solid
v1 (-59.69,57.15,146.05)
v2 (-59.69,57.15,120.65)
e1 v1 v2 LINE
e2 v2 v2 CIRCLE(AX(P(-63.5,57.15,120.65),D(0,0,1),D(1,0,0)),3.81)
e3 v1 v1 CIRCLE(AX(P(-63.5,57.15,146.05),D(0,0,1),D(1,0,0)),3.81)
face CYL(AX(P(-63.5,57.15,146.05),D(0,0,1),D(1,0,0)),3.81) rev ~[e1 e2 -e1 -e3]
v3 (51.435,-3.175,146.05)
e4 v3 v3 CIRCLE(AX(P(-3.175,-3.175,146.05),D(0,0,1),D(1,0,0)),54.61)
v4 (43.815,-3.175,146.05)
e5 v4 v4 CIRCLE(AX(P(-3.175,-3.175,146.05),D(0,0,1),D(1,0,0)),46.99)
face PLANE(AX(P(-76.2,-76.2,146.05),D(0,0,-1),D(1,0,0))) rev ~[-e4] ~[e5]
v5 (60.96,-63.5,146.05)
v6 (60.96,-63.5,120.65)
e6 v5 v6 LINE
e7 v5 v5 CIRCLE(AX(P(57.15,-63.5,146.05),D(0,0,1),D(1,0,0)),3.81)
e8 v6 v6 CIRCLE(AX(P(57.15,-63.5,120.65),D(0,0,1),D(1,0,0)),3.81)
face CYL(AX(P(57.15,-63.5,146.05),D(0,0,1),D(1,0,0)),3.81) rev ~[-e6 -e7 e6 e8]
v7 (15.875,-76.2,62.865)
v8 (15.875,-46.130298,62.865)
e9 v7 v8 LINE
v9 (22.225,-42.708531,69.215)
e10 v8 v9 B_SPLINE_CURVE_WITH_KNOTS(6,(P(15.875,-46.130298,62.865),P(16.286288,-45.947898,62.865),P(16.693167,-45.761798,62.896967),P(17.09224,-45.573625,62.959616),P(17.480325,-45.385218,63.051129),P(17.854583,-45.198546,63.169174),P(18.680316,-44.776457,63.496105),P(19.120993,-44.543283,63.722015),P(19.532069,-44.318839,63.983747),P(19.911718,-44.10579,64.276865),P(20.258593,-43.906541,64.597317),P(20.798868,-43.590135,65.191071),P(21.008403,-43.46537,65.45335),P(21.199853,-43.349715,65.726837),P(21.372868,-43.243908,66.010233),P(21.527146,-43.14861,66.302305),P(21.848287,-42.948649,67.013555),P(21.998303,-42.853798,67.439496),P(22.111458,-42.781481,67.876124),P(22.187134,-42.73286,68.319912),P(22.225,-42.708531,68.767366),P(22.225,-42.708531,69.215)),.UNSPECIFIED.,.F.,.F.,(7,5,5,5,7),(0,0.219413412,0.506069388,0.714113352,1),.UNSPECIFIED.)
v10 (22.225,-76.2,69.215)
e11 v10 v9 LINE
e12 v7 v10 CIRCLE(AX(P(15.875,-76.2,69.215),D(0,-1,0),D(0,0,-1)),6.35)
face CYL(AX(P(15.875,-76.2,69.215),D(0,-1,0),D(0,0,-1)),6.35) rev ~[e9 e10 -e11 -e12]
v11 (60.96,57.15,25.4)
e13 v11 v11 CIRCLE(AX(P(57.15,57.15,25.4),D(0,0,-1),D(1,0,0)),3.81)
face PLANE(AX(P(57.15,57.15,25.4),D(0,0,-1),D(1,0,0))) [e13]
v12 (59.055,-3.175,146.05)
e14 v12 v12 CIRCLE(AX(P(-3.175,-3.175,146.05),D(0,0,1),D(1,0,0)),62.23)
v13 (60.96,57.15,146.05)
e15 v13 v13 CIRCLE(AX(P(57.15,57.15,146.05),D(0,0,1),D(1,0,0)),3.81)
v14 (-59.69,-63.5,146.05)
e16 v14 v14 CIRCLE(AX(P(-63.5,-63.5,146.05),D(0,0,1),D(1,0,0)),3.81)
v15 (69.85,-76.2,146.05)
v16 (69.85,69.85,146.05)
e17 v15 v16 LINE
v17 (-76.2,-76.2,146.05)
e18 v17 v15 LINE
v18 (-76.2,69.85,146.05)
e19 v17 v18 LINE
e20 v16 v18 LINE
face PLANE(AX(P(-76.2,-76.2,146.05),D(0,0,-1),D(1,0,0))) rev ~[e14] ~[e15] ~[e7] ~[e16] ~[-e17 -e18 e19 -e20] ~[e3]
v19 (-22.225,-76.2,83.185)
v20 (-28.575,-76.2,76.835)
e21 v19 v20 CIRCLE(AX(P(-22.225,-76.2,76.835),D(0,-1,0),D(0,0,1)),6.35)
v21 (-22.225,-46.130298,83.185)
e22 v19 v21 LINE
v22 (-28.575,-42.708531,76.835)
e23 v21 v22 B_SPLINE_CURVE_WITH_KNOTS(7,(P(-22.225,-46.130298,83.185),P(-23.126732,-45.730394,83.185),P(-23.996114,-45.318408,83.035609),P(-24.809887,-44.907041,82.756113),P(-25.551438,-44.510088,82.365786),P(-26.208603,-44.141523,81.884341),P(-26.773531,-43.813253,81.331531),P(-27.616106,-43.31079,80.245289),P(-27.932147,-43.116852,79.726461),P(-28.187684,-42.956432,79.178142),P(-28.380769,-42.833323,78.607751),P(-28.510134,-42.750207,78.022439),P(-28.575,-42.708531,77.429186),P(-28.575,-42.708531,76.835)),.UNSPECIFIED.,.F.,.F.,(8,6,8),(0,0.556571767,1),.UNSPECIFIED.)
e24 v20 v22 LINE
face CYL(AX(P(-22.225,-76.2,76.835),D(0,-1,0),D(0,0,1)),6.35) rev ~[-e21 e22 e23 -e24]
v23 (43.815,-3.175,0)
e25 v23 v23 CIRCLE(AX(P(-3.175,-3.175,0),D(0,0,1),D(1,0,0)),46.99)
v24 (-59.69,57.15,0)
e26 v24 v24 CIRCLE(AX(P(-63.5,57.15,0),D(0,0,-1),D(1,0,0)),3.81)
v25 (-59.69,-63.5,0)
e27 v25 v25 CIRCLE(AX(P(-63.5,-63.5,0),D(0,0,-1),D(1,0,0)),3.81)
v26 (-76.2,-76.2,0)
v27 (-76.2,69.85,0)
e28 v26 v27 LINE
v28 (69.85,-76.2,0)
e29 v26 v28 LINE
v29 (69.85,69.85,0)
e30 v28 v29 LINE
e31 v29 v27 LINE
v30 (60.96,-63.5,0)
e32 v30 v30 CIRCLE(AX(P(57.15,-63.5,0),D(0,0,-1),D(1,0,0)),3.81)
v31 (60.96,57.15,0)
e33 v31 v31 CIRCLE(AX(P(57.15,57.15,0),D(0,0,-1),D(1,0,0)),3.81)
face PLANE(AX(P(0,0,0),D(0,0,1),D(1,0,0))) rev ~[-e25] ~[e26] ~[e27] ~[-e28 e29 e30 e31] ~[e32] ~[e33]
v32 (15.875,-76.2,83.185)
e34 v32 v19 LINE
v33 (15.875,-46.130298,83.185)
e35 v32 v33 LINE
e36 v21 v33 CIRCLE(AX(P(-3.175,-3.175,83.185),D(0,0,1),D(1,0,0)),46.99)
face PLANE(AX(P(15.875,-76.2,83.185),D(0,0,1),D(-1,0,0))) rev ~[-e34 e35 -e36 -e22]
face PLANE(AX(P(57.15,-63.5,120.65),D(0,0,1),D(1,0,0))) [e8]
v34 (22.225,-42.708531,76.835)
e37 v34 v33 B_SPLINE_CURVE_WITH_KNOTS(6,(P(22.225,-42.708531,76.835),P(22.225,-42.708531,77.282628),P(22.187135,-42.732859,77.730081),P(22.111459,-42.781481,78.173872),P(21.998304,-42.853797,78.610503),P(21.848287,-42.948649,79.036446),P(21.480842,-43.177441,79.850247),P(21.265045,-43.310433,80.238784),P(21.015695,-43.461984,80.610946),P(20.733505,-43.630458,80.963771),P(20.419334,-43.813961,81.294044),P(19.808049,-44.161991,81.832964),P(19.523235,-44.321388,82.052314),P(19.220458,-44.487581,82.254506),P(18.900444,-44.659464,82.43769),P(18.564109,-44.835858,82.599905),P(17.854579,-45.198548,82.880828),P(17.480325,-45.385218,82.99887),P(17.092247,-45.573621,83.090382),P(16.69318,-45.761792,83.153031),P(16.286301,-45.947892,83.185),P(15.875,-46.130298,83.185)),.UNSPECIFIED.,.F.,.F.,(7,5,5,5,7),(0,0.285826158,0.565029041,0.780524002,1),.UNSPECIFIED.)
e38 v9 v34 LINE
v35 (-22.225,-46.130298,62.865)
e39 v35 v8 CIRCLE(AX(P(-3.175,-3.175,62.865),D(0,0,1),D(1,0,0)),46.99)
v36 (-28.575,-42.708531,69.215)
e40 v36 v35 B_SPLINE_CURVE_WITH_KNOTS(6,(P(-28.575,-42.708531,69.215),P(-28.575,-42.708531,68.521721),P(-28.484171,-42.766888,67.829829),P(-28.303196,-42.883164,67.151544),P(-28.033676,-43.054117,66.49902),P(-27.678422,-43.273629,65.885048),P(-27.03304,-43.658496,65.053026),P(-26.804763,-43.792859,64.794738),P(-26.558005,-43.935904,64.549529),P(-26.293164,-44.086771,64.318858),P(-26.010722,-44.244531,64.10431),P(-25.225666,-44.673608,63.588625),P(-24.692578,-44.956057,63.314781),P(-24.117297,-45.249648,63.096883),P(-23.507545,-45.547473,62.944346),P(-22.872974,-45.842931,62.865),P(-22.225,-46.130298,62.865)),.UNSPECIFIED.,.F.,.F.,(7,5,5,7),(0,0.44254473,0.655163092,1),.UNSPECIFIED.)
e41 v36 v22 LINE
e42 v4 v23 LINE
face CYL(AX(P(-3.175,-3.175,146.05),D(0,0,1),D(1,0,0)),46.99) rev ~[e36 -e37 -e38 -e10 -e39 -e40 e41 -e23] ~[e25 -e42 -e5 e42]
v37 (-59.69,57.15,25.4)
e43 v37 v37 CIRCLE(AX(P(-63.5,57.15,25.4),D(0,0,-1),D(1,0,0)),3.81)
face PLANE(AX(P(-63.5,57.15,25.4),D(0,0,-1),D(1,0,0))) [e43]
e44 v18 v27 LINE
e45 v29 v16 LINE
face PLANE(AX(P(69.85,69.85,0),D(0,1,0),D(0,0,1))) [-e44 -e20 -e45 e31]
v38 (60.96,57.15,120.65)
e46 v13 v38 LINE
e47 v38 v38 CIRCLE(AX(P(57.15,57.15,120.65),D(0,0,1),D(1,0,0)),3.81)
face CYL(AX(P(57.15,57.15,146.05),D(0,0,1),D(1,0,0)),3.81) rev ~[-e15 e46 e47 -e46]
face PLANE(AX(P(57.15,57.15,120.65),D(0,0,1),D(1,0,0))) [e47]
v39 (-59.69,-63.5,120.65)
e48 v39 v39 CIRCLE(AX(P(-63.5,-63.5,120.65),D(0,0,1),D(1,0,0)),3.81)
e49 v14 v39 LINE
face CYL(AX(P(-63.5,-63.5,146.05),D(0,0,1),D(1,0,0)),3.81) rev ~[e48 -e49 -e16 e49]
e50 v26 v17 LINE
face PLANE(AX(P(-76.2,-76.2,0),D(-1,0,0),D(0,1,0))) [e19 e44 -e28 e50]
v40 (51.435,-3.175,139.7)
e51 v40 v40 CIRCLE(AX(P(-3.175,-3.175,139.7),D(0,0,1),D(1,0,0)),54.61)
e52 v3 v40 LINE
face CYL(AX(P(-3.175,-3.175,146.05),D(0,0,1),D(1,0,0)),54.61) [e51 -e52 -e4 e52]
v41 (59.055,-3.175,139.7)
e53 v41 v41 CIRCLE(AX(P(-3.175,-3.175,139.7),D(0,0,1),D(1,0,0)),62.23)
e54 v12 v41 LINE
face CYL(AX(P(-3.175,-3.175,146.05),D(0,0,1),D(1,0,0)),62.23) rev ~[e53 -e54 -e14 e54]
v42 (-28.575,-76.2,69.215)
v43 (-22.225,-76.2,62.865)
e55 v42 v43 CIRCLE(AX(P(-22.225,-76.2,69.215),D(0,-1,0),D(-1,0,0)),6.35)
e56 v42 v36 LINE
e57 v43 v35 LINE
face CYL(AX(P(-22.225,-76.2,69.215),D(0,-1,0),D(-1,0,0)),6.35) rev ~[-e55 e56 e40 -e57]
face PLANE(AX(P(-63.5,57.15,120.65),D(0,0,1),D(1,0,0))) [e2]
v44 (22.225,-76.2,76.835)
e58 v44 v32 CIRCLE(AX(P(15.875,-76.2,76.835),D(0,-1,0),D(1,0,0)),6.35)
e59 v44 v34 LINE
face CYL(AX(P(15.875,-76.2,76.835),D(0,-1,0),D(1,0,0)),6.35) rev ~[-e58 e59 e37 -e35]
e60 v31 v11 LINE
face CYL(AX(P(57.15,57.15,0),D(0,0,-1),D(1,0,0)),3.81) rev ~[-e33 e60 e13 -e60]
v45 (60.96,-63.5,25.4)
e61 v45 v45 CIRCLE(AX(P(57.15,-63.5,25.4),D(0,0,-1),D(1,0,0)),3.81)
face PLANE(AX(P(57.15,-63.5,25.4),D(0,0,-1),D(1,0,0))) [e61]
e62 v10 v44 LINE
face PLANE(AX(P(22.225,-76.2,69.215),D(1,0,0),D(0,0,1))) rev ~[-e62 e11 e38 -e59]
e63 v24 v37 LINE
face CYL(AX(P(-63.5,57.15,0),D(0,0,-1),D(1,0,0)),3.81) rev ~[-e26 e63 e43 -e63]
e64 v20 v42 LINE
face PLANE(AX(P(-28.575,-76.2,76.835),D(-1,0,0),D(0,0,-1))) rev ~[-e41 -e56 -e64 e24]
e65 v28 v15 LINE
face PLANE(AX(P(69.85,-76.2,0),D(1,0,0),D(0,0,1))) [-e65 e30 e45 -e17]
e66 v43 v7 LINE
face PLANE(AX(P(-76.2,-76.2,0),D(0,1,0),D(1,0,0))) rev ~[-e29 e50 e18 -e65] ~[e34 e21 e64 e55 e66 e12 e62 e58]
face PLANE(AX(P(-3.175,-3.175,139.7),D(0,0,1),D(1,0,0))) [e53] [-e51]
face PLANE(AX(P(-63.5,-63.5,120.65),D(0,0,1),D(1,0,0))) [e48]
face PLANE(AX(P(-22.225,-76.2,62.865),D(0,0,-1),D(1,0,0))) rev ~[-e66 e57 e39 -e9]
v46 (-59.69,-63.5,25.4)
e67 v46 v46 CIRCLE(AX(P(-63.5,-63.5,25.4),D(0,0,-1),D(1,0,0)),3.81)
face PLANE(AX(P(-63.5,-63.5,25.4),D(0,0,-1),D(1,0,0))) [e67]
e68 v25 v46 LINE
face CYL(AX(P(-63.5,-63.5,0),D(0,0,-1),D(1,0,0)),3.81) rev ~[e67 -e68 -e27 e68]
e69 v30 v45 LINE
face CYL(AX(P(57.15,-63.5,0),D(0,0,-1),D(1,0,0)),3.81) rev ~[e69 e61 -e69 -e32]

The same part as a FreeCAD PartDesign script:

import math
import FreeCAD as App
import Part
import Sketcher

V = App.Vector
Q = App.Units.Quantity

doc = App.newDocument("Part")
body = doc.addObject("PartDesign::Body", "Body")

sketch1 = body.newObject("Sketcher::SketchObject", "Sketch")
sketch1.AttachmentSupport = (doc.getObject("XY_Plane"), [""])
sketch1.MapMode = "FlatFace"
sketch1.addGeometry([
    Part.LineSegment(V(-76, 76, 0), V(-76, -76, 0)),
    Part.LineSegment(V(-76, -76, 0), V(76, -76, 0)),
    Part.LineSegment(V(76, -76, 0), V(76, 76, 0)),
    Part.LineSegment(V(76, 76, 0), V(-76, 76, 0)),
], False)
sketch1.addConstraint([
    Sketcher.Constraint("Coincident", 0, 2, 1, 1),
    Sketcher.Constraint("Coincident", 1, 2, 2, 1),
    Sketcher.Constraint("Coincident", 2, 2, 3, 1),
    Sketcher.Constraint("Coincident", 3, 2, 0, 1),
    Sketcher.Constraint("Vertical", 0),
    Sketcher.Constraint("Horizontal", 1),
    Sketcher.Constraint("Vertical", 2),
    Sketcher.Constraint("Horizontal", 3),
    Sketcher.Constraint("Symmetric", 0, 2, 2, 2, -1, 1),
    Sketcher.Constraint("Equal", 3, 0),
    Sketcher.Constraint("DistanceX", 1, 1, 1, 2, Q("6 in")),
])
pad1 = body.newObject("PartDesign::Pad", "Pad")
pad1.Profile = sketch1
pad1.Length = Q("6 in")

sketch2 = body.newObject("Sketcher::SketchObject", "Sketch001")
sketch2.AttachmentSupport = (doc.getObject("XZ_Plane"), [""])
sketch2.MapMode = "FlatFace"
sketch2.AttachmentOffset = App.Placement(V(0, 0, 3 * 25.4), App.Rotation())
sketch2.addGeometry([
    Part.LineSegment(V(70, 152, 0), V(70, 0, 0)),
    Part.LineSegment(V(70, 0, 0), V(76, 0, 0)),
    Part.LineSegment(V(76, 0, 0), V(76, 152, 0)),
    Part.LineSegment(V(76, 152, 0), V(70, 152, 0)),
], False)
sketch2.addConstraint([
    Sketcher.Constraint("Coincident", 0, 2, 1, 1),
    Sketcher.Constraint("Coincident", 1, 2, 2, 1),
    Sketcher.Constraint("Coincident", 2, 2, 3, 1),
    Sketcher.Constraint("Coincident", 3, 2, 0, 1),
    Sketcher.Constraint("Vertical", 0),
    Sketcher.Constraint("Horizontal", 1),
    Sketcher.Constraint("Vertical", 2),
    Sketcher.Constraint("Horizontal", 3),
    Sketcher.Constraint("PointOnObject", 0, 2, -1),
    Sketcher.Constraint("DistanceY", 0, 2, 0, 1, Q("6 in")),
    Sketcher.Constraint("DistanceX", -1, 1, 1, 2, Q("3 in")),
    Sketcher.Constraint("DistanceX", 1, 1, 1, 2, Q("0.25 in")),
])
pocket1 = body.newObject("PartDesign::Pocket", "Pocket")
pocket1.Profile = sketch2
pocket1.Type = "ThroughAll"

sketch3 = body.newObject("Sketcher::SketchObject", "Sketch002")
sketch3.AttachmentSupport = (doc.getObject("YZ_Plane"), [""])
sketch3.MapMode = "FlatFace"
sketch3.AttachmentOffset = App.Placement(V(0, 0, 2.75 * 25.4), App.Rotation())
sketch3.addGeometry([
    Part.LineSegment(V(70, 152, 0), V(70, 0, 0)),
    Part.LineSegment(V(70, 0, 0), V(76, 0, 0)),
    Part.LineSegment(V(76, 0, 0), V(76, 152, 0)),
    Part.LineSegment(V(76, 152, 0), V(70, 152, 0)),
], False)
sketch3.addConstraint([
    Sketcher.Constraint("Coincident", 0, 2, 1, 1),
    Sketcher.Constraint("Coincident", 1, 2, 2, 1),
    Sketcher.Constraint("Coincident", 2, 2, 3, 1),
    Sketcher.Constraint("Coincident", 3, 2, 0, 1),
    Sketcher.Constraint("Vertical", 0),
    Sketcher.Constraint("Horizontal", 1),
    Sketcher.Constraint("Vertical", 2),
    Sketcher.Constraint("Horizontal", 3),
    Sketcher.Constraint("PointOnObject", 0, 2, -1),
    Sketcher.Constraint("DistanceY", 0, 2, 0, 1, Q("6 in")),
    Sketcher.Constraint("DistanceX", -1, 1, 1, 2, Q("3 in")),
    Sketcher.Constraint("DistanceX", 1, 1, 1, 2, Q("0.25 in")),
])
pocket2 = body.newObject("PartDesign::Pocket", "Pocket001")
pocket2.Profile = sketch3
pocket2.Type = "ThroughAll"

sketch4 = body.newObject("Sketcher::SketchObject", "Sketch003")
sketch4.AttachmentSupport = (doc.getObject("XZ_Plane"), [""])
sketch4.MapMode = "FlatFace"
sketch4.AttachmentOffset = App.Placement(V(0, 0, 3 * 25.4), App.Rotation())
sketch4.addGeometry([
    Part.LineSegment(V(-76, 152, 0), V(-76, 146, 0)),
    Part.LineSegment(V(-76, 146, 0), V(70, 146, 0)),
    Part.LineSegment(V(70, 146, 0), V(70, 152, 0)),
    Part.LineSegment(V(70, 152, 0), V(-76, 152, 0)),
], False)
sketch4.addConstraint([
    Sketcher.Constraint("Coincident", 0, 2, 1, 1),
    Sketcher.Constraint("Coincident", 1, 2, 2, 1),
    Sketcher.Constraint("Coincident", 2, 2, 3, 1),
    Sketcher.Constraint("Coincident", 3, 2, 0, 1),
    Sketcher.Constraint("Vertical", 0),
    Sketcher.Constraint("Horizontal", 1),
    Sketcher.Constraint("Vertical", 2),
    Sketcher.Constraint("Horizontal", 3),
    Sketcher.Constraint("DistanceX", 0, 2, -1, 1, Q("3 in")),
    Sketcher.Constraint("DistanceY", -1, 1, 2, 2, Q("6 in")),
    Sketcher.Constraint("DistanceX", 1, 1, 1, 2, Q("5.75 in")),
    Sketcher.Constraint("DistanceY", 0, 2, 0, 1, Q("0.25 in")),
])
pocket3 = body.newObject("PartDesign::Pocket", "Pocket002")
pocket3.Profile = sketch4
pocket3.Type = "ThroughAll"

sketch5 = body.newObject("Sketcher::SketchObject", "Sketch004")
sketch5.AttachmentSupport = (doc.getObject("XY_Plane"), [""])
sketch5.MapMode = "FlatFace"
sketch5.AttachmentOffset = App.Placement(V(0, 0, 5.75 * 25.4), App.Rotation())
sketch5.addGeometry([
    Part.Circle(V(-63.5, 57.1, 0), V(0, 0, 1), 3.8),
    Part.Circle(V(57.1, 57.1, 0), V(0, 0, 1), 3.8),
    Part.Circle(V(57.1, -63.5, 0), V(0, 0, 1), 3.8),
    Part.Circle(V(-63.5, -63.5, 0), V(0, 0, 1), 3.8),
], False)
sketch5.addConstraint([
    Sketcher.Constraint("Equal", 0, 1),
    Sketcher.Constraint("Equal", 1, 2),
    Sketcher.Constraint("Equal", 2, 3),
    Sketcher.Constraint("Horizontal", 0, 3, 1, 3),
    Sketcher.Constraint("Horizontal", 2, 3, 3, 3),
    Sketcher.Constraint("Vertical", 1, 3, 2, 3),
    Sketcher.Constraint("Vertical", 0, 3, 3, 3),
    Sketcher.Constraint("Diameter", 0, Q("0.3 in")),
    Sketcher.Constraint("DistanceX", 0, 3, -1, 1, Q("2.5 in")),
    Sketcher.Constraint("DistanceY", 2, 3, -1, 1, Q("2.5 in")),
    Sketcher.Constraint("DistanceY", -1, 1, 0, 3, Q("2.25 in")),
    Sketcher.Constraint("DistanceX", -1, 1, 1, 3, Q("2.25 in")),
])
pocket4 = body.newObject("PartDesign::Pocket", "Pocket003")
pocket4.Profile = sketch5
pocket4.Length = Q("1 in")

sketch6 = body.newObject("Sketcher::SketchObject", "Sketch005")
sketch6.AttachmentSupport = (doc.getObject("XY_Plane"), [""])
sketch6.MapMode = "FlatFace"
sketch6.AttachmentOffset = App.Placement(V(0, 0, 5.75 * 25.4), App.Rotation())
sketch6.addGeometry([
    Part.Circle(V(-3, -3, 0), V(0, 0, 1), 62),
    Part.Circle(V(-3, -3, 0), V(0, 0, 1), 55),
], False)
sketch6.addConstraint([
    Sketcher.Constraint("Coincident", 1, 3, 0, 3),
    Sketcher.Constraint("Diameter", 0, Q("4.9 in")),
    Sketcher.Constraint("Diameter", 1, Q("4.3 in")),
    Sketcher.Constraint("DistanceX", 0, 3, -1, 1, Q("0.125 in")),
    Sketcher.Constraint("DistanceY", 0, 3, -1, 1, Q("0.125 in")),
])
pocket5 = body.newObject("PartDesign::Pocket", "Pocket004")
pocket5.Profile = sketch6
pocket5.Length = Q("0.25 in")

sketch7 = body.newObject("Sketcher::SketchObject", "Sketch006")
sketch7.AttachmentSupport = (doc.getObject("XY_Plane"), [""])
sketch7.MapMode = "FlatFace"
sketch7.AttachmentOffset = App.Placement(V(0, 0, 5.75 * 25.4), App.Rotation())
sketch7.addGeometry(Part.Circle(V(-3, -3, 0), V(0, 0, 1), 47), False)
sketch7.addConstraint([
    Sketcher.Constraint("Diameter", 0, Q("3.7 in")),
    Sketcher.Constraint("DistanceX", 0, 3, -1, 1, Q("0.125 in")),
    Sketcher.Constraint("DistanceY", 0, 3, -1, 1, Q("0.125 in")),
])
pocket6 = body.newObject("PartDesign::Pocket", "Pocket005")
pocket6.Profile = sketch7
pocket6.Type = "ThroughAll"

sketch8 = body.newObject("Sketcher::SketchObject", "Sketch007")
sketch8.AttachmentSupport = (doc.getObject("XZ_Plane"), [""])
sketch8.MapMode = "FlatFace"
sketch8.AttachmentOffset = App.Placement(V(0, 0, 3 * 25.4), App.Rotation())
sketch8.addGeometry([
    Part.ArcOfCircle(Part.Circle(V(16, 77, 0), V(0, 0, 1), 6), math.radians(0), math.radians(90)),
    Part.LineSegment(V(16, 83, 0), V(-22, 83, 0)),
    Part.ArcOfCircle(Part.Circle(V(-22, 77, 0), V(0, 0, 1), 6), math.radians(90), math.radians(180)),
    Part.LineSegment(V(-29, 77, 0), V(-29, 69, 0)),
    Part.ArcOfCircle(Part.Circle(V(-22, 69, 0), V(0, 0, 1), 6), math.radians(180), math.radians(270)),
    Part.LineSegment(V(-22, 63, 0), V(16, 63, 0)),
    Part.ArcOfCircle(Part.Circle(V(16, 69, 0), V(0, 0, 1), 6), math.radians(-90), math.radians(0)),
    Part.LineSegment(V(22, 69, 0), V(22, 77, 0)),
], False)
sketch8.addConstraint([
    Sketcher.Constraint("Tangent", 0, 2, 1, 1),
    Sketcher.Constraint("Tangent", 1, 2, 2, 1),
    Sketcher.Constraint("Tangent", 2, 2, 3, 1),
    Sketcher.Constraint("Tangent", 3, 2, 4, 1),
    Sketcher.Constraint("Tangent", 4, 2, 5, 1),
    Sketcher.Constraint("Tangent", 5, 2, 6, 1),
    Sketcher.Constraint("Tangent", 6, 2, 7, 1),
    Sketcher.Constraint("Tangent", 7, 2, 0, 1),
    Sketcher.Constraint("Horizontal", 1),
    Sketcher.Constraint("Vertical", 3),
    Sketcher.Constraint("Horizontal", 5),
    Sketcher.Constraint("Vertical", 7),
    Sketcher.Constraint("Equal", 0, 2),
    Sketcher.Constraint("Equal", 2, 4),
    Sketcher.Constraint("Equal", 4, 6),
    Sketcher.Constraint("Radius", 0, Q("0.25 in")),
    Sketcher.Constraint("DistanceX", 1, 2, 1, 1, Q("1.5 in")),
    Sketcher.Constraint("DistanceY", 3, 2, 3, 1, Q("0.3 in")),
    Sketcher.Constraint("DistanceX", -1, 1, 0, 3, Q("0.625 in")),
    Sketcher.Constraint("DistanceY", -1, 1, 0, 3, Q("3.025 in")),
])
pocket7 = body.newObject("PartDesign::Pocket", "Pocket006")
pocket7.Profile = sketch8
pocket7.Length = Q("2 in")

sketch9 = body.newObject("Sketcher::SketchObject", "Sketch008")
sketch9.AttachmentSupport = (doc.getObject("XY_Plane"), [""])
sketch9.MapMode = "FlatFace"
sketch9.addGeometry([
    Part.Circle(V(-63.5, -63.5, 0), V(0, 0, 1), 3.8),
    Part.Circle(V(57.1, -63.5, 0), V(0, 0, 1), 3.8),
    Part.Circle(V(57.1, 57.1, 0), V(0, 0, 1), 3.8),
    Part.Circle(V(-63.5, 57.1, 0), V(0, 0, 1), 3.8),
], False)
sketch9.addConstraint([
    Sketcher.Constraint("Equal", 0, 1),
    Sketcher.Constraint("Equal", 1, 2),
    Sketcher.Constraint("Equal", 2, 3),
    Sketcher.Constraint("Horizontal", 0, 3, 1, 3),
    Sketcher.Constraint("Horizontal", 2, 3, 3, 3),
    Sketcher.Constraint("Vertical", 1, 3, 2, 3),
    Sketcher.Constraint("Vertical", 0, 3, 3, 3),
    Sketcher.Constraint("Diameter", 0, Q("0.3 in")),
    Sketcher.Constraint("DistanceX", 0, 3, -1, 1, Q("2.5 in")),
    Sketcher.Constraint("DistanceY", 0, 3, -1, 1, Q("2.5 in")),
    Sketcher.Constraint("DistanceX", -1, 1, 1, 3, Q("2.25 in")),
    Sketcher.Constraint("DistanceY", -1, 1, 2, 3, Q("2.25 in")),
])
pocket8 = body.newObject("PartDesign::Pocket", "Pocket007")
pocket8.Profile = sketch9
pocket8.Length = Q("1 in")
pocket8.Reversed = True

doc.recompute()
